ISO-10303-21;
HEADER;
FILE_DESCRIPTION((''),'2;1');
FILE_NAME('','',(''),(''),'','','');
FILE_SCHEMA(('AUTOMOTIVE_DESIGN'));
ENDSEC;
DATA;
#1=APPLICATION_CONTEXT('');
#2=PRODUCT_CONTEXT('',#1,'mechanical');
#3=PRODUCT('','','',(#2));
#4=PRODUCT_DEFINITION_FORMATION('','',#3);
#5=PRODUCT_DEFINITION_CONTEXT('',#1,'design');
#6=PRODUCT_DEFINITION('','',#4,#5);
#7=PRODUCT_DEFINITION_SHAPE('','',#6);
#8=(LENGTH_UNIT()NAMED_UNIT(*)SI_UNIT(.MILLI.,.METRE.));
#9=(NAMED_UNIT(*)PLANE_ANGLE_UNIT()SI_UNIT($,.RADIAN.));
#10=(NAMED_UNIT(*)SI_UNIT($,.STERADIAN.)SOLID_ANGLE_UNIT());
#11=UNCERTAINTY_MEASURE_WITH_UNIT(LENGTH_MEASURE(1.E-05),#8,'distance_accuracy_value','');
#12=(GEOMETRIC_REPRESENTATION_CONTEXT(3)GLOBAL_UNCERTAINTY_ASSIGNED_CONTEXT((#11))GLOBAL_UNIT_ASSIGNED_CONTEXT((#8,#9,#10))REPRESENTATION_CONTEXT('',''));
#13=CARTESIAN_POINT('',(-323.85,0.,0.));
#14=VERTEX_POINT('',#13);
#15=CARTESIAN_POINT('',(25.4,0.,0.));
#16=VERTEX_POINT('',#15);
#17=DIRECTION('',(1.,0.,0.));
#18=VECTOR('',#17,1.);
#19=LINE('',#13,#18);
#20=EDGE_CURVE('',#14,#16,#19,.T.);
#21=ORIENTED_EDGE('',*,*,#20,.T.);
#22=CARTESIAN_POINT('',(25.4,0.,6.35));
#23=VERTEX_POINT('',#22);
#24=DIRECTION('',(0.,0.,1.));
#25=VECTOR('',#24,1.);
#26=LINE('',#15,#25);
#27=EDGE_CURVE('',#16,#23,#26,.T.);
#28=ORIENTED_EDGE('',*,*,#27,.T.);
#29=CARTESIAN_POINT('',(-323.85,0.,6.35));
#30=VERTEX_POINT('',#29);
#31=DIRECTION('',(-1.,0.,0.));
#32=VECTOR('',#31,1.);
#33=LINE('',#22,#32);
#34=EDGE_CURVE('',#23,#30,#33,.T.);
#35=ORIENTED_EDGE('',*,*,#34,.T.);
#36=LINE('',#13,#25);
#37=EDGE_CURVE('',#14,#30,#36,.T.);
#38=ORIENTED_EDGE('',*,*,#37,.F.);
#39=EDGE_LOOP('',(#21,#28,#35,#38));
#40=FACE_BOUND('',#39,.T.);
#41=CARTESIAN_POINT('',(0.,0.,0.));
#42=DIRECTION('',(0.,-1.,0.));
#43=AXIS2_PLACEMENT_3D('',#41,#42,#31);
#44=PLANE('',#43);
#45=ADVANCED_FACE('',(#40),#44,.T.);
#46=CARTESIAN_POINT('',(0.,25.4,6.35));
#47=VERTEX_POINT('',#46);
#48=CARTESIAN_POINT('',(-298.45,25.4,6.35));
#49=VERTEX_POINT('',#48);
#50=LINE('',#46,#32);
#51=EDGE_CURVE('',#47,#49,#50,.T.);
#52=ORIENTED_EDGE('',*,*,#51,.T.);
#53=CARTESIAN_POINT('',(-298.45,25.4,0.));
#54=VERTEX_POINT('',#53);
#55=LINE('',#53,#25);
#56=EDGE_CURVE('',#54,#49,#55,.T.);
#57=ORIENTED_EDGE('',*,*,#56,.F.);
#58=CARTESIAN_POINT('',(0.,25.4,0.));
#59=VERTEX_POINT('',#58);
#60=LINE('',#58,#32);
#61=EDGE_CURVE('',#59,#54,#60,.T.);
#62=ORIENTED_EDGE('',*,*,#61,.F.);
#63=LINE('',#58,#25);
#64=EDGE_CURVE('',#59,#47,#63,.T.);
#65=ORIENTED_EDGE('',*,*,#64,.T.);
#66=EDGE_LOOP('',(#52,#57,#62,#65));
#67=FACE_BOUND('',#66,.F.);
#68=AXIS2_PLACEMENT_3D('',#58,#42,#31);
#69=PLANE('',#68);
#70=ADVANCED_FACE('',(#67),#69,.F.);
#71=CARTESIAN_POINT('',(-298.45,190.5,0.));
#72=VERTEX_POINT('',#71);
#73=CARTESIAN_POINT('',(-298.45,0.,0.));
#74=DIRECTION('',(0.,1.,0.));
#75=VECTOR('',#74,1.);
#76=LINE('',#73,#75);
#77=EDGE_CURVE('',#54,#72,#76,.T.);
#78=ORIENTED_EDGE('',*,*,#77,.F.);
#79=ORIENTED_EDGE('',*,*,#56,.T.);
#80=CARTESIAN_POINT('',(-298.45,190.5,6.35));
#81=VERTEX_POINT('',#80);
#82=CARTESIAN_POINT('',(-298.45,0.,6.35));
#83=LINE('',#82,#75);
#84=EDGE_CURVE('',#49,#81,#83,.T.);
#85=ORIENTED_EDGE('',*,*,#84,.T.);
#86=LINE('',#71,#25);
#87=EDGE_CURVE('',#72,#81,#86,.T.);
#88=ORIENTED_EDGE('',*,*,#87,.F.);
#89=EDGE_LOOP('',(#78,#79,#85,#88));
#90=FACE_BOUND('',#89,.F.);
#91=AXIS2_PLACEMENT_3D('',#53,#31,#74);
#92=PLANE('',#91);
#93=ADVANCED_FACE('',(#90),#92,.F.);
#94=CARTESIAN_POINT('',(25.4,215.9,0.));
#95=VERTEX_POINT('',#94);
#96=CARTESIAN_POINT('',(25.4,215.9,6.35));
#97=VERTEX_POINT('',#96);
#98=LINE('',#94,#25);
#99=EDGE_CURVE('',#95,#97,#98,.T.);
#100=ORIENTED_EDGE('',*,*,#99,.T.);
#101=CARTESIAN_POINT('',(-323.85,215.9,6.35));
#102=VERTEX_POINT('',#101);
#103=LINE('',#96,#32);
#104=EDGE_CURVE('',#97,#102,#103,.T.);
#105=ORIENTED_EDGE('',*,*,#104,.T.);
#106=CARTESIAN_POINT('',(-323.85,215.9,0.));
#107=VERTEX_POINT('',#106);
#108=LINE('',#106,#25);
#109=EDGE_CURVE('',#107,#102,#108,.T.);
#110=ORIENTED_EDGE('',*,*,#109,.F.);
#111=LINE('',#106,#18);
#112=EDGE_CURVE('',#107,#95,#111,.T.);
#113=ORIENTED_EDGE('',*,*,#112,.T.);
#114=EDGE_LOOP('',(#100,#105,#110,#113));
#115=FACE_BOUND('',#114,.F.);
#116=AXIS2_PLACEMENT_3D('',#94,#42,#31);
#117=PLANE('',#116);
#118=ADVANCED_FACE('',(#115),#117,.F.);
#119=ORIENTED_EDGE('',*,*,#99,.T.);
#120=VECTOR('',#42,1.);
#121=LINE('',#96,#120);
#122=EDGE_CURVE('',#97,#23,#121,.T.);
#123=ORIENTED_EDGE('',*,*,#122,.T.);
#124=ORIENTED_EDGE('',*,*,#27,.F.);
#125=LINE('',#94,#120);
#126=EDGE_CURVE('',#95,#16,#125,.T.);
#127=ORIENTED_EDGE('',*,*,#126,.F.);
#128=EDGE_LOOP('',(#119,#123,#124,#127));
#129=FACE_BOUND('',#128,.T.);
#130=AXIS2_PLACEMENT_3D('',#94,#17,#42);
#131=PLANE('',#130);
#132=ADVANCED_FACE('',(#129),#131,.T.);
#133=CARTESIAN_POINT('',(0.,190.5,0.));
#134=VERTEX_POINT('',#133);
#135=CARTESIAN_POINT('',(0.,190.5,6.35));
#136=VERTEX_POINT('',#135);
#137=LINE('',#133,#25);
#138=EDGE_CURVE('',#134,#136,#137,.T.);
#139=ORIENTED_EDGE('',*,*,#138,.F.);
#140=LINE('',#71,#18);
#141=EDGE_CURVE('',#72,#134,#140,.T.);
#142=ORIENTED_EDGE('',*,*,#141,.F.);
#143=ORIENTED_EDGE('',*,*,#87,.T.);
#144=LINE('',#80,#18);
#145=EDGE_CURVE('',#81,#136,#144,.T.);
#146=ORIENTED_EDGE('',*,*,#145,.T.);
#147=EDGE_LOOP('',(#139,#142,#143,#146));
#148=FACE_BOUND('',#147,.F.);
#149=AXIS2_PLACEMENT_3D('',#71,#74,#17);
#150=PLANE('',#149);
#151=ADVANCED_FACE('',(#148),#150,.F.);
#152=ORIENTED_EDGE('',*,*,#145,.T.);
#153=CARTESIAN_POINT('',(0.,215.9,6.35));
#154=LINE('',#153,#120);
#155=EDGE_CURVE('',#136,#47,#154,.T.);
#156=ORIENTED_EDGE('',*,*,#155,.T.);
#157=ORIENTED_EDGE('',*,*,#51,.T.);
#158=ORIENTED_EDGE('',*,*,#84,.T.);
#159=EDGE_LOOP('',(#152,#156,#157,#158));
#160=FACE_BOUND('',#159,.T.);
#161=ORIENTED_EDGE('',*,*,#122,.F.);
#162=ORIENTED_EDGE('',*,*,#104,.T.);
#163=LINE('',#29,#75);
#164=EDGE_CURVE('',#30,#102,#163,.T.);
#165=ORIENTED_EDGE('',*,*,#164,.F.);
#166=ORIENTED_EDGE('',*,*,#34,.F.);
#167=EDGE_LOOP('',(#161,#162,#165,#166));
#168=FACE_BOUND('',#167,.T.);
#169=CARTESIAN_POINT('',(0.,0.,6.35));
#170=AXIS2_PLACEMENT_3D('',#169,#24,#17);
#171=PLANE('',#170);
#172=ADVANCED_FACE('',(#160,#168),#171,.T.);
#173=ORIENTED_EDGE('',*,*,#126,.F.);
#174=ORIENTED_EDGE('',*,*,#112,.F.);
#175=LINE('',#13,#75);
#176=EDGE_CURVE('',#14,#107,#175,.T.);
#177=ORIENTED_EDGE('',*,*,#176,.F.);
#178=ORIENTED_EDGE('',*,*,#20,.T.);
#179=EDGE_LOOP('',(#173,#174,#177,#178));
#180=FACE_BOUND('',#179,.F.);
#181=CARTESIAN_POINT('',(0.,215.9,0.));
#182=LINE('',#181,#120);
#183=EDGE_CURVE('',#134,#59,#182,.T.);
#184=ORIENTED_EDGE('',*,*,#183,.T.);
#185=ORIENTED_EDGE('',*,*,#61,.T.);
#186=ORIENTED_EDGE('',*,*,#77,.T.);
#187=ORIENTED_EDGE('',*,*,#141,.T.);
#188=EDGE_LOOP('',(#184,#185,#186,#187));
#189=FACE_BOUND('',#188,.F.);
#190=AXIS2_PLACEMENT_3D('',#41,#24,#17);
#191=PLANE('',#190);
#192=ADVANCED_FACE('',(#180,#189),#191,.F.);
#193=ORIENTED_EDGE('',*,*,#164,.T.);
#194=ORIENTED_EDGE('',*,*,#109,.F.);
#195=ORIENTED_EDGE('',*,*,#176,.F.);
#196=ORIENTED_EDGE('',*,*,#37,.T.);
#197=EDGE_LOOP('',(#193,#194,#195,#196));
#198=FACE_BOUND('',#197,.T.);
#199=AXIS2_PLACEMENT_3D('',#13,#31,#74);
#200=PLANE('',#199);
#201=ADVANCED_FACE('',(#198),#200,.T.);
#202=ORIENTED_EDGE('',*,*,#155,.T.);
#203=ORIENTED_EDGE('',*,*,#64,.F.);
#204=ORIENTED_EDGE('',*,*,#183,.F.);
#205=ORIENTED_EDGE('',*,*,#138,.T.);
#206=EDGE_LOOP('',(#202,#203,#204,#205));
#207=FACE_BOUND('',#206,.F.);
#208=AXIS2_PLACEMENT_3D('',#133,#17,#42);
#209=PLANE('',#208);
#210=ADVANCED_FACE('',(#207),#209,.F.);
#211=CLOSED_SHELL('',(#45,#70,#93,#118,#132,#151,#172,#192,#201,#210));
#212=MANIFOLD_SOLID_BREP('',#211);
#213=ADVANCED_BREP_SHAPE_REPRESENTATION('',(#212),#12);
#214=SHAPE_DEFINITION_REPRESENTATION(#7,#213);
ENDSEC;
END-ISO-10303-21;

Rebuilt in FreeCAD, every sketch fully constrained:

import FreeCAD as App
import Part
import Sketcher
Q = App.Units.Quantity

doc = App.newDocument("Part")
body = doc.addObject("PartDesign::Body", "Body")

sketch1 = body.newObject("Sketcher::SketchObject", "Sketch")
sketch1.AttachmentSupport = (doc.getObject("XY_Plane"), [""])
sketch1.MapMode = "FlatFace"
sketch1.addGeometry(Part.LineSegment(App.Vector(25, 0, 0), App.Vector(25, 216, 0)), False)
sketch1.addGeometry(Part.LineSegment(App.Vector(25, 216, 0), App.Vector(-324, 216, 0)), False)
sketch1.addGeometry(Part.LineSegment(App.Vector(-324, 216, 0), App.Vector(-324, 0, 0)), False)
sketch1.addGeometry(Part.LineSegment(App.Vector(-324, 0, 0), App.Vector(25, 0, 0)), False)
sketch1.addGeometry(Part.LineSegment(App.Vector(0, 25, 0), App.Vector(-298, 25, 0)), False)
sketch1.addGeometry(Part.LineSegment(App.Vector(-298, 25, 0), App.Vector(-298, 190, 0)), False)
sketch1.addGeometry(Part.LineSegment(App.Vector(-298, 190, 0), App.Vector(0, 190, 0)), False)
sketch1.addGeometry(Part.LineSegment(App.Vector(0, 190, 0), App.Vector(0, 25, 0)), False)
sketch1.addConstraint(Sketcher.Constraint("Coincident", 0, 2, 1, 1))
sketch1.addConstraint(Sketcher.Constraint("Coincident", 1, 2, 2, 1))
sketch1.addConstraint(Sketcher.Constraint("Coincident", 2, 2, 3, 1))
sketch1.addConstraint(Sketcher.Constraint("Coincident", 3, 2, 0, 1))
sketch1.addConstraint(Sketcher.Constraint("Coincident", 4, 2, 5, 1))
sketch1.addConstraint(Sketcher.Constraint("Coincident", 5, 2, 6, 1))
sketch1.addConstraint(Sketcher.Constraint("Coincident", 6, 2, 7, 1))
sketch1.addConstraint(Sketcher.Constraint("Coincident", 7, 2, 4, 1))
sketch1.addConstraint(Sketcher.Constraint("Vertical", 0))
sketch1.addConstraint(Sketcher.Constraint("Horizontal", 1))
sketch1.addConstraint(Sketcher.Constraint("Vertical", 2))
sketch1.addConstraint(Sketcher.Constraint("Horizontal", 3))
sketch1.addConstraint(Sketcher.Constraint("Horizontal", 4))
sketch1.addConstraint(Sketcher.Constraint("Vertical", 5))
sketch1.addConstraint(Sketcher.Constraint("Horizontal", 6))
sketch1.addConstraint(Sketcher.Constraint("Vertical", 7))
sketch1.addConstraint(Sketcher.Constraint("PointOnObject", 2, 2, -1))
sketch1.addConstraint(Sketcher.Constraint("PointOnObject", 6, 2, -2))
sketch1.addConstraint(Sketcher.Constraint("DistanceY", 0, 1, 0, 2, Q("8.5 in")))
sketch1.addConstraint(Sketcher.Constraint("DistanceX", -1, 1, 0, 2, Q("1 in")))
sketch1.addConstraint(Sketcher.Constraint("DistanceY", -1, 1, 4, 2, Q("1 in")))
sketch1.addConstraint(Sketcher.Constraint("DistanceX", 2, 2, 4, 2, Q("1 in")))
sketch1.addConstraint(Sketcher.Constraint("DistanceY", 5, 2, 1, 2, Q("1 in")))
sketch1.addConstraint(Sketcher.Constraint("DistanceX", 1, 2, 1, 1, Q("13.75 in")))
pad1 = body.newObject("PartDesign::Pad", "Pad")
pad1.Profile = sketch1
pad1.Length = Q("0.25 in")

doc.recompute()
